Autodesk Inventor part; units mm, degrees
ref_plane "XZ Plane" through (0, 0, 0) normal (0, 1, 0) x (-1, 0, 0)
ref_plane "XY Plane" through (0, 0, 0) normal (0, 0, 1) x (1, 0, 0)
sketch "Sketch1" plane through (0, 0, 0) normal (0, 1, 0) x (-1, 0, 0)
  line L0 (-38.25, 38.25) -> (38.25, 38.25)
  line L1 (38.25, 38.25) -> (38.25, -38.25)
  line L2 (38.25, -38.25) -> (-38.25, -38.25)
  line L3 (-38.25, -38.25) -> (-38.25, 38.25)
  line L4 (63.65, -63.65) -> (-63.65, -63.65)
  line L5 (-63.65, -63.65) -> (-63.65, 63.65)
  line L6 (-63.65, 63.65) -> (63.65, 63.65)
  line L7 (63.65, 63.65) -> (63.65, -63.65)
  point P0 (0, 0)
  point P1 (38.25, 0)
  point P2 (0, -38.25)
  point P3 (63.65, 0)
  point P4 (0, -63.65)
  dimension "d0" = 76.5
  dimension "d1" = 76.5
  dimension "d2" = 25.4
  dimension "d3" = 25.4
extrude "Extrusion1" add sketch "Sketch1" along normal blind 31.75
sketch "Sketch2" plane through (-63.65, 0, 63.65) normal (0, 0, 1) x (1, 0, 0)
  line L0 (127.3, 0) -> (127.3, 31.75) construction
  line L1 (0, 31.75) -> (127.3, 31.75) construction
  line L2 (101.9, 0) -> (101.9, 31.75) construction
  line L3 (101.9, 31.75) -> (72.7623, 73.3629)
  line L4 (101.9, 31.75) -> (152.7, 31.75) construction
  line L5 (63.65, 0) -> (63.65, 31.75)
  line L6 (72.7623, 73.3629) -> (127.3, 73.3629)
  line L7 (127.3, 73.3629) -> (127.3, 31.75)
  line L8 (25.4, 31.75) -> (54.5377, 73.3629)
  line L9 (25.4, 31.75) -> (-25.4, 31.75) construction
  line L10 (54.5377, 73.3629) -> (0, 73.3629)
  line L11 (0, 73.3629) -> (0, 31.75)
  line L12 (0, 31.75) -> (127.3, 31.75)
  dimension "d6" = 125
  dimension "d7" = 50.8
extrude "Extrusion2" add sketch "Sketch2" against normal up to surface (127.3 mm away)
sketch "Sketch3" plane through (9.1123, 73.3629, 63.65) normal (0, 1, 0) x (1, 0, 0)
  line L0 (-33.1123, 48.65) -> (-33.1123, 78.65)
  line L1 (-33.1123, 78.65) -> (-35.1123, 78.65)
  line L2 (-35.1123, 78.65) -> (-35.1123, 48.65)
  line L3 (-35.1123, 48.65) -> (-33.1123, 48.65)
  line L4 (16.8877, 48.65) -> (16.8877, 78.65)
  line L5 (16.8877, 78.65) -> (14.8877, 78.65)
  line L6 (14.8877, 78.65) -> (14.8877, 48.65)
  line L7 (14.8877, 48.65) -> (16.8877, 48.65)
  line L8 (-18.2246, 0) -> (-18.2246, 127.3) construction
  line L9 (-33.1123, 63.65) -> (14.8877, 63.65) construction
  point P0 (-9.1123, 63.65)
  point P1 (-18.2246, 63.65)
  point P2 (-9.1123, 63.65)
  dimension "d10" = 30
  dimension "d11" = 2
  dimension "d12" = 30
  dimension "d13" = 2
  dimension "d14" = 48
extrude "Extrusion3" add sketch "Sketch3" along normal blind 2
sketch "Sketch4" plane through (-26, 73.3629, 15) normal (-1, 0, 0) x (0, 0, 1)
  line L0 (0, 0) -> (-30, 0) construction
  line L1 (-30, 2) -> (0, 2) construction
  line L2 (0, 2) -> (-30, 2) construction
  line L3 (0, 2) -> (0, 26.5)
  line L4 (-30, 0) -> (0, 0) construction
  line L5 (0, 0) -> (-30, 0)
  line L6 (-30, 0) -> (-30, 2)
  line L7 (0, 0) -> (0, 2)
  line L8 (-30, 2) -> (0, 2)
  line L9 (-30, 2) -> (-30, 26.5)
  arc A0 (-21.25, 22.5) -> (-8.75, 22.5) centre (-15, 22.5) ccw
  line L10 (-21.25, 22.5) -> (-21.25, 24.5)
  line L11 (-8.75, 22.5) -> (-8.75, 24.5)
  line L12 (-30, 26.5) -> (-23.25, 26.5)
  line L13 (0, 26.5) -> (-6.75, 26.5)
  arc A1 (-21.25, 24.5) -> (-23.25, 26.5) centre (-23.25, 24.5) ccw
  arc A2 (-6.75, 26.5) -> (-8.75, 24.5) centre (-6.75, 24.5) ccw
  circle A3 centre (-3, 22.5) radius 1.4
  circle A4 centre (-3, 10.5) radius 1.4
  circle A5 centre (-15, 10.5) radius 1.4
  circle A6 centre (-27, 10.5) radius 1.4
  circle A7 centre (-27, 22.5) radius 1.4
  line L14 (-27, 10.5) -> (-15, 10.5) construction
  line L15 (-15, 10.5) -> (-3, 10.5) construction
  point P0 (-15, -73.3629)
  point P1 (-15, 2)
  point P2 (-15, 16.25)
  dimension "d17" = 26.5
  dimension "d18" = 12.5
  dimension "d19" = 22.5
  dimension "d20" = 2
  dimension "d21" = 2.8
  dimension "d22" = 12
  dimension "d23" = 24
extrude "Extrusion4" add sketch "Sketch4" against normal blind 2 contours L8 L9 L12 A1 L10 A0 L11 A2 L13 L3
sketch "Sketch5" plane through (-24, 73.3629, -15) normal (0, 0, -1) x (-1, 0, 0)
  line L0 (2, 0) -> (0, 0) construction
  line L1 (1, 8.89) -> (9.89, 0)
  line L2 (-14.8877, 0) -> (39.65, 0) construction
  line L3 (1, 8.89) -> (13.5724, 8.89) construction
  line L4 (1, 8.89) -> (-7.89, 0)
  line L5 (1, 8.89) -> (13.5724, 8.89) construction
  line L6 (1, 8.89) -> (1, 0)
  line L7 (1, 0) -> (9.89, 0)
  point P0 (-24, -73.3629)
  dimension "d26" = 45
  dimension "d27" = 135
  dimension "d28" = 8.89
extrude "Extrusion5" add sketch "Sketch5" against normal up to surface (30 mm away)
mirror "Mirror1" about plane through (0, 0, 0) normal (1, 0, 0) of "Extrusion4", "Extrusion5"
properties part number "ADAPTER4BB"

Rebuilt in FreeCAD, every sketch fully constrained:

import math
import FreeCAD as App
import Part
import Sketcher

V = App.Vector
Q = App.Units.Quantity

doc = App.newDocument("Part")
body = doc.addObject("PartDesign::Body", "Body")

# Sketch on XZ plane
sketch1 = doc.addObject("Sketcher::SketchObject", "Sketch")
body.addObject(sketch1)
sketch1.AttachmentSupport = (doc.XZ_Plane, [""])
sketch1.MapMode = "FlatFace"
sketch1.addGeometry(Part.LineSegment(V(63.65, -63.65, 0), V(-63.65, -63.65, 0)), False)
sketch1.addGeometry(Part.LineSegment(V(-63.65, -63.65, 0), V(-63.65, 63.65, 0)), False)
sketch1.addGeometry(Part.LineSegment(V(-63.65, 63.65, 0), V(63.65, 63.65, 0)), False)
sketch1.addGeometry(Part.LineSegment(V(63.65, 63.65, 0), V(63.65, -63.65, 0)), False)
sketch1.addGeometry(Part.LineSegment(V(38.25, -38.25, 0), V(38.25, 38.25, 0)), False)
sketch1.addGeometry(Part.LineSegment(V(38.25, 38.25, 0), V(-38.25, 38.25, 0)), False)
sketch1.addGeometry(Part.LineSegment(V(-38.25, 38.25, 0), V(-38.25, -38.25, 0)), False)
sketch1.addGeometry(Part.LineSegment(V(-38.25, -38.25, 0), V(38.25, -38.25, 0)), False)
sketch1.addConstraint(Sketcher.Constraint("Coincident", 0, 2, 1, 1))
sketch1.addConstraint(Sketcher.Constraint("Coincident", 1, 2, 2, 1))
sketch1.addConstraint(Sketcher.Constraint("Coincident", 2, 2, 3, 1))
sketch1.addConstraint(Sketcher.Constraint("Coincident", 3, 2, 0, 1))
sketch1.addConstraint(Sketcher.Constraint("Coincident", 4, 2, 5, 1))
sketch1.addConstraint(Sketcher.Constraint("Coincident", 5, 2, 6, 1))
sketch1.addConstraint(Sketcher.Constraint("Coincident", 6, 2, 7, 1))
sketch1.addConstraint(Sketcher.Constraint("Coincident", 7, 2, 4, 1))
sketch1.addConstraint(Sketcher.Constraint("Horizontal", 0))
sketch1.addConstraint(Sketcher.Constraint("Vertical", 1))
sketch1.addConstraint(Sketcher.Constraint("Horizontal", 2))
sketch1.addConstraint(Sketcher.Constraint("Vertical", 3))
sketch1.addConstraint(Sketcher.Constraint("Vertical", 4))
sketch1.addConstraint(Sketcher.Constraint("Horizontal", 5))
sketch1.addConstraint(Sketcher.Constraint("Vertical", 6))
sketch1.addConstraint(Sketcher.Constraint("Horizontal", 7))
sketch1.addConstraint(Sketcher.Constraint("Symmetric", 0, 2, 2, 2, -1, 1))
sketch1.addConstraint(Sketcher.Constraint("Symmetric", 4, 2, 6, 2, -1, 1))
sketch1.addConstraint(Sketcher.Constraint("Equal", 2, 1))
sketch1.addConstraint(Sketcher.Constraint("Equal", 7, 4))
sketch1.addConstraint(Sketcher.Constraint("DistanceX", 5, 2, 5, 1, 76.5))
sketch1.addConstraint(Sketcher.Constraint("DistanceX", 4, 2, 2, 2, 25.4))
pad1 = doc.addObject("PartDesign::Pad", "Pad")
body.addObject(pad1)
pad1.Profile = sketch1
pad1.Length = 31.75
pad1.Reversed = True

# Sketch on XY plane
sketch2 = doc.addObject("Sketcher::SketchObject", "Sketch001")
body.addObject(sketch2)
sketch2.AttachmentSupport = (doc.XY_Plane, [""])
sketch2.MapMode = "FlatFace"
sketch2.AttachmentOffset = App.Placement(V(0, 0, 63.65), App.Rotation())
sketch2.addGeometry(Part.LineSegment(V(-63.65, 31.75, 0), V(-38.25, 31.75, 0)), False)
sketch2.addGeometry(Part.LineSegment(V(-38.25, 31.75, 0), V(-9.1123, 73.3629, 0)), False)
sketch2.addGeometry(Part.LineSegment(V(-9.1123, 73.3629, 0), V(-63.65, 73.3629, 0)), False)
sketch2.addGeometry(Part.LineSegment(V(-63.65, 73.3629, 0), V(-63.65, 31.75, 0)), False)
sketch2.addGeometry(Part.LineSegment(V(9.1123, 73.3629, 0), V(38.25, 31.75, 0)), False)
sketch2.addGeometry(Part.LineSegment(V(38.25, 31.75, 0), V(63.65, 31.75, 0)), False)
sketch2.addGeometry(Part.LineSegment(V(63.65, 31.75, 0), V(63.65, 73.3629, 0)), False)
sketch2.addGeometry(Part.LineSegment(V(63.65, 73.3629, 0), V(9.1123, 73.3629, 0)), False)
sketch2.addConstraint(Sketcher.Constraint("Coincident", 0, 2, 1, 1))
sketch2.addConstraint(Sketcher.Constraint("Coincident", 1, 2, 2, 1))
sketch2.addConstraint(Sketcher.Constraint("Coincident", 2, 2, 3, 1))
sketch2.addConstraint(Sketcher.Constraint("Coincident", 3, 2, 0, 1))
sketch2.addConstraint(Sketcher.Constraint("Coincident", 4, 2, 5, 1))
sketch2.addConstraint(Sketcher.Constraint("Coincident", 5, 2, 6, 1))
sketch2.addConstraint(Sketcher.Constraint("Coincident", 6, 2, 7, 1))
sketch2.addConstraint(Sketcher.Constraint("Coincident", 7, 2, 4, 1))
sketch2.addConstraint(Sketcher.Constraint("Horizontal", 0))
sketch2.addConstraint(Sketcher.Constraint("Horizontal", 2))
sketch2.addConstraint(Sketcher.Constraint("Vertical", 3))
sketch2.addConstraint(Sketcher.Constraint("Horizontal", 5))
sketch2.addConstraint(Sketcher.Constraint("Vertical", 6))
sketch2.addConstraint(Sketcher.Constraint("Horizontal", 7))
sketch2.addConstraint(Sketcher.Constraint("Symmetric", 0, 2, 4, 2, -2))
sketch2.addConstraint(Sketcher.Constraint("Symmetric", 2, 2, 6, 2, -2))
sketch2.addConstraint(Sketcher.Constraint("Equal", 2, 7))
sketch2.addConstraint(Sketcher.Constraint("Distance", 1, 50.8))
sketch2.addConstraint(Sketcher.Constraint("Angle", 1, Q("55 deg")))
sketch2.addConstraint(Sketcher.Constraint("DistanceX", 0, 1, 0, 2, 25.4))
sketch2.addConstraint(Sketcher.Constraint("DistanceX", 0, 2, 4, 2, 76.5))
sketch2.addConstraint(Sketcher.Constraint("DistanceY", -1, 1, 0, 2, 31.75))
pad2 = doc.addObject("PartDesign::Pad", "Pad001")
body.addObject(pad2)
pad2.Profile = sketch2
pad2.Length = 127.3
pad2.Reversed = True

# Sketch on XZ plane
sketch3 = doc.addObject("Sketcher::SketchObject", "Sketch002")
body.addObject(sketch3)
sketch3.AttachmentSupport = (doc.XZ_Plane, [""])
sketch3.MapMode = "FlatFace"
sketch3.AttachmentOffset = App.Placement(V(0, 0, -73.3629), App.Rotation())
sketch3.addGeometry(Part.LineSegment(V(-26, 15, 0), V(-24, 15, 0)), False)
sketch3.addGeometry(Part.LineSegment(V(-24, 15, 0), V(-24, -15, 0)), False)
sketch3.addGeometry(Part.LineSegment(V(-24, -15, 0), V(-26, -15, 0)), False)
sketch3.addGeometry(Part.LineSegment(V(-26, -15, 0), V(-26, 15, 0)), False)
sketch3.addGeometry(Part.LineSegment(V(24, 15, 0), V(26, 15, 0)), False)
sketch3.addGeometry(Part.LineSegment(V(26, 15, 0), V(26, -15, 0)), False)
sketch3.addGeometry(Part.LineSegment(V(26, -15, 0), V(24, -15, 0)), False)
sketch3.addGeometry(Part.LineSegment(V(24, -15, 0), V(24, 15, 0)), False)
sketch3.addConstraint(Sketcher.Constraint("Coincident", 0, 2, 1, 1))
sketch3.addConstraint(Sketcher.Constraint("Coincident", 1, 2, 2, 1))
sketch3.addConstraint(Sketcher.Constraint("Coincident", 2, 2, 3, 1))
sketch3.addConstraint(Sketcher.Constraint("Coincident", 3, 2, 0, 1))
sketch3.addConstraint(Sketcher.Constraint("Coincident", 4, 2, 5, 1))
sketch3.addConstraint(Sketcher.Constraint("Coincident", 5, 2, 6, 1))
sketch3.addConstraint(Sketcher.Constraint("Coincident", 6, 2, 7, 1))
sketch3.addConstraint(Sketcher.Constraint("Coincident", 7, 2, 4, 1))
sketch3.addConstraint(Sketcher.Constraint("Horizontal", 0))
sketch3.addConstraint(Sketcher.Constraint("Vertical", 1))
sketch3.addConstraint(Sketcher.Constraint("Horizontal", 2))
sketch3.addConstraint(Sketcher.Constraint("Vertical", 3))
sketch3.addConstraint(Sketcher.Constraint("Horizontal", 4))
sketch3.addConstraint(Sketcher.Constraint("Vertical", 5))
sketch3.addConstraint(Sketcher.Constraint("Horizontal", 6))
sketch3.addConstraint(Sketcher.Constraint("Vertical", 7))
sketch3.addConstraint(Sketcher.Constraint("Symmetric", 2, 2, 4, 2, -1, 1))
sketch3.addConstraint(Sketcher.Constraint("Symmetric", 0, 2, 6, 2, -1, 1))
sketch3.addConstraint(Sketcher.Constraint("Horizontal", 3, 2, 4, 2))
sketch3.addConstraint(Sketcher.Constraint("DistanceX", 0, 1, 0, 2, 2.0))
sketch3.addConstraint(Sketcher.Constraint("DistanceY", 1, 2, 1, 1, 30.0))
sketch3.addConstraint(Sketcher.Constraint("DistanceX", 1, 2, 6, 2, 48.0))
pad3 = doc.addObject("PartDesign::Pad", "Pad002")
body.addObject(pad3)
pad3.Profile = sketch3
pad3.Length = 2
pad3.Reversed = True

# Sketch on YZ plane
sketch4 = doc.addObject("Sketcher::SketchObject", "Sketch003")
body.addObject(sketch4)
sketch4.AttachmentSupport = (doc.YZ_Plane, [""])
sketch4.MapMode = "FlatFace"
sketch4.AttachmentOffset = App.Placement(V(0, 0, -26), App.Rotation())
sketch4.addGeometry(Part.LineSegment(V(75.3629, -15, 0), V(75.3629, 15, 0)), False)
sketch4.addGeometry(Part.LineSegment(V(75.3629, 15, 0), V(99.8629, 15, 0)), False)
sketch4.addGeometry(Part.LineSegment(V(99.8629, 15, 0), V(99.8629, 8.25, 0)), False)
sketch4.addGeometry(Part.ArcOfCircle(Part.Circle(V(97.8629, 8.25, 0), V(0, 0, 1), 2), math.radians(-90), math.radians(0)), False)
sketch4.addGeometry(Part.LineSegment(V(97.8629, 6.25, 0), V(95.8629, 6.25, 0)), False)
sketch4.addGeometry(Part.ArcOfCircle(Part.Circle(V(95.8629, 0, 0), V(0, 0, 1), 6.25), math.radians(90), math.radians(270)), False)
sketch4.addGeometry(Part.LineSegment(V(95.8629, -6.25, 0), V(97.8629, -6.25, 0)), False)
sketch4.addGeometry(Part.ArcOfCircle(Part.Circle(V(97.8629, -8.25, 0), V(0, 0, 1), 2), math.radians(0), math.radians(90)), False)
sketch4.addGeometry(Part.LineSegment(V(99.8629, -8.25, 0), V(99.8629, -15, 0)), False)
sketch4.addGeometry(Part.LineSegment(V(99.8629, -15, 0), V(75.3629, -15, 0)), False)
sketch4.addGeometry(Part.Circle(V(83.8629, -12, 0), V(0, 0, 1), 1.4), False)
sketch4.addGeometry(Part.Circle(V(83.8629, 0, 0), V(0, 0, 1), 1.4), False)
sketch4.addGeometry(Part.Circle(V(83.8629, 12, 0), V(0, 0, 1), 1.4), False)
sketch4.addGeometry(Part.Circle(V(95.8629, -12, 0), V(0, 0, 1), 1.4), False)
sketch4.addGeometry(Part.Circle(V(95.8629, 12, 0), V(0, 0, 1), 1.4), False)
sketch4.addConstraint(Sketcher.Constraint("Coincident", 0, 2, 1, 1))
sketch4.addConstraint(Sketcher.Constraint("Coincident", 1, 2, 2, 1))
sketch4.addConstraint(Sketcher.Constraint("Tangent", 2, 2, 3, 2))
sketch4.addConstraint(Sketcher.Constraint("Tangent", 3, 1, 4, 1))
sketch4.addConstraint(Sketcher.Constraint("Tangent", 4, 2, 5, 1))
sketch4.addConstraint(Sketcher.Constraint("Tangent", 5, 2, 6, 1))
sketch4.addConstraint(Sketcher.Constraint("Tangent", 6, 2, 7, 2))
sketch4.addConstraint(Sketcher.Constraint("Tangent", 7, 1, 8, 1))
sketch4.addConstraint(Sketcher.Constraint("Coincident", 8, 2, 9, 1))
sketch4.addConstraint(Sketcher.Constraint("Coincident", 9, 2, 0, 1))
sketch4.addConstraint(Sketcher.Constraint("Vertical", 0))
sketch4.addConstraint(Sketcher.Constraint("Horizontal", 1))
sketch4.addConstraint(Sketcher.Constraint("Vertical", 2))
sketch4.addConstraint(Sketcher.Constraint("Horizontal", 4))
sketch4.addConstraint(Sketcher.Constraint("Horizontal", 6))
sketch4.addConstraint(Sketcher.Constraint("Vertical", 8))
sketch4.addConstraint(Sketcher.Constraint("Horizontal", 9))
sketch4.addConstraint(Sketcher.Constraint("Equal", 3, 7))
sketch4.addConstraint(Sketcher.Constraint("Equal", 10, 11))
sketch4.addConstraint(Sketcher.Constraint("Equal", 11, 12))
sketch4.addConstraint(Sketcher.Constraint("Equal", 12, 13))
sketch4.addConstraint(Sketcher.Constraint("Equal", 13, 14))
sketch4.addConstraint(Sketcher.Constraint("Symmetric", 3, 3, 7, 3, -1))
sketch4.addConstraint(Sketcher.Constraint("Symmetric", 10, 3, 12, 3, -1))
sketch4.addConstraint(Sketcher.Constraint("Symmetric", 13, 3, 14, 3, -1))
sketch4.addConstraint(Sketcher.Constraint("PointOnObject", 11, 3, -1))
sketch4.addConstraint(Sketcher.Constraint("Horizontal", 10, 3, 13, 3))
sketch4.addConstraint(Sketcher.Constraint("Vertical", 10, 3, 11, 3))
sketch4.addConstraint(Sketcher.Constraint("Vertical", 5, 3, 13, 3))
sketch4.addConstraint(Sketcher.Constraint("Equal", 2, 8))
sketch4.addConstraint(Sketcher.Constraint("Radius", 3, 2.0))
sketch4.addConstraint(Sketcher.Constraint("Diameter", 10, 2.8))
sketch4.addConstraint(Sketcher.Constraint("DistanceX", 4, 2, 4, 1, 2.0))
sketch4.addConstraint(Sketcher.Constraint("Radius", 5, 6.25))
sketch4.addConstraint(Sketcher.Constraint("DistanceY", 10, 3, -1, 1, 12.0))
sketch4.addConstraint(Sketcher.Constraint("DistanceX", 10, 3, 5, 3, 12.0))
sketch4.addConstraint(Sketcher.Constraint("DistanceX", 0, 2, 3, 3, 22.5))
sketch4.addConstraint(Sketcher.Constraint("DistanceY", 0, 1, 0, 2, 30.0))
sketch4.addConstraint(Sketcher.Constraint("DistanceX", -1, 1, 3, 3, 97.863))
pad4 = doc.addObject("PartDesign::Pad", "Pad003")
body.addObject(pad4)
pad4.Profile = sketch4
pad4.Length = 2

# Sketch on XY plane
sketch5 = doc.addObject("Sketcher::SketchObject", "Sketch004")
body.addObject(sketch5)
sketch5.AttachmentSupport = (doc.XY_Plane, [""])
sketch5.MapMode = "FlatFace"
sketch5.AttachmentOffset = App.Placement(V(0, 0, -15), App.Rotation())
sketch5.addGeometry(Part.LineSegment(V(-33.89, 73.3629, 0), V(-25, 82.2529, 0)), False)
sketch5.addGeometry(Part.LineSegment(V(-25, 82.2529, 0), V(-25, 73.3629, 0)), False)
sketch5.addGeometry(Part.LineSegment(V(-25, 73.3629, 0), V(-33.89, 73.3629, 0)), False)
sketch5.addConstraint(Sketcher.Constraint("Coincident", 0, 2, 1, 1))
sketch5.addConstraint(Sketcher.Constraint("Coincident", 1, 2, 2, 1))
sketch5.addConstraint(Sketcher.Constraint("Coincident", 2, 2, 0, 1))
sketch5.addConstraint(Sketcher.Constraint("Vertical", 1))
sketch5.addConstraint(Sketcher.Constraint("Horizontal", 2))
sketch5.addConstraint(Sketcher.Constraint("Equal", 2, 1))
sketch5.addConstraint(Sketcher.Constraint("DistanceX", 2, 2, 2, 1, 8.89))
sketch5.addConstraint(Sketcher.Constraint("DistanceX", 0, 2, -1, 1, 25.0))
sketch5.addConstraint(Sketcher.Constraint("DistanceY", -1, 1, 0, 2, 82.253))
pad5 = doc.addObject("PartDesign::Pad", "Pad004")
body.addObject(pad5)
pad5.Profile = sketch5
pad5.Length = 30
doc.recompute()

mirrored = doc.addObject("PartDesign::Mirrored", "Mirrored")
body.addObject(mirrored)
mirrored.Originals = [pad4, pad5]
mirrored.MirrorPlane = (doc.YZ_Plane, [""])
body.Tip = mirrored

doc.recompute()
